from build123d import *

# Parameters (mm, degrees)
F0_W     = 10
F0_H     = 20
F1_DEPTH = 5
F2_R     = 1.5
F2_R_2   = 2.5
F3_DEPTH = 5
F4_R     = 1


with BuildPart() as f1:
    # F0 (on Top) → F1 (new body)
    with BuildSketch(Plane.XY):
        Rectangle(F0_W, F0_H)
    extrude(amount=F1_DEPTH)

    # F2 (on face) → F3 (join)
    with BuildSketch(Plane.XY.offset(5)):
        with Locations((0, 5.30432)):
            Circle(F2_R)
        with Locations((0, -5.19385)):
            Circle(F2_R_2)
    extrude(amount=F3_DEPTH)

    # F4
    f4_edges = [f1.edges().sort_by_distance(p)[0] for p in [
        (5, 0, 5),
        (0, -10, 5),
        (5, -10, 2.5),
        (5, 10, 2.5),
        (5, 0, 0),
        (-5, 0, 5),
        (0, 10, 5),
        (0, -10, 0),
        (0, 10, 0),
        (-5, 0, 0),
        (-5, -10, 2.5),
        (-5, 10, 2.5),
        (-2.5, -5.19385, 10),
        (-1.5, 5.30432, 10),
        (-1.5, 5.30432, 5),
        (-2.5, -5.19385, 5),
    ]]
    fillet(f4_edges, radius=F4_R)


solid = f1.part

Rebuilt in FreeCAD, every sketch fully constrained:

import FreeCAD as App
import Part
import Sketcher

V = App.Vector

doc = App.newDocument("Part")
body = doc.addObject("PartDesign::Body", "Body")

# Sketch on XY plane
sketch1 = body.newObject("Sketcher::SketchObject", "Sketch")
sketch1.AttachmentSupport = (doc.getObject("XY_Plane"), [""])
sketch1.MapMode = "FlatFace"
sketch1.addGeometry(Part.LineSegment(V(-5, 10, 0), V(-5, -10, 0)), False)
sketch1.addGeometry(Part.LineSegment(V(-5, -10, 0), V(5, -10, 0)), False)
sketch1.addGeometry(Part.LineSegment(V(5, -10, 0), V(5, 10, 0)), False)
sketch1.addGeometry(Part.LineSegment(V(5, 10, 0), V(-5, 10, 0)), False)
sketch1.addConstraint(Sketcher.Constraint("Coincident", 0, 2, 1, 1))
sketch1.addConstraint(Sketcher.Constraint("Coincident", 1, 2, 2, 1))
sketch1.addConstraint(Sketcher.Constraint("Coincident", 2, 2, 3, 1))
sketch1.addConstraint(Sketcher.Constraint("Coincident", 3, 2, 0, 1))
sketch1.addConstraint(Sketcher.Constraint("Vertical", 0))
sketch1.addConstraint(Sketcher.Constraint("Horizontal", 1))
sketch1.addConstraint(Sketcher.Constraint("Vertical", 2))
sketch1.addConstraint(Sketcher.Constraint("Horizontal", 3))
sketch1.addConstraint(Sketcher.Constraint("Symmetric", 0, 2, 2, 2, -1, 1))
sketch1.addConstraint(Sketcher.Constraint("DistanceX", 1, 1, 1, 2, 10.0))
sketch1.addConstraint(Sketcher.Constraint("DistanceY", 0, 2, 0, 1, 20.0))
pad1 = body.newObject("PartDesign::Pad", "Pad")
pad1.Profile = sketch1
pad1.Length = 5

# Sketch on XY plane
sketch2 = body.newObject("Sketcher::SketchObject", "Sketch001")
sketch2.AttachmentSupport = (doc.getObject("XY_Plane"), [""])
sketch2.MapMode = "FlatFace"
sketch2.AttachmentOffset = App.Placement(V(0, 0, 5), App.Rotation())
sketch2.addGeometry(Part.Circle(V(0, 5.3, 0), V(0, 0, 1), 1.5), False)
sketch2.addGeometry(Part.Circle(V(0, -5.2, 0), V(0, 0, 1), 2.5), False)
sketch2.addConstraint(Sketcher.Constraint("PointOnObject", 0, 3, -2))
sketch2.addConstraint(Sketcher.Constraint("PointOnObject", 1, 3, -2))
sketch2.addConstraint(Sketcher.Constraint("Diameter", 0, 3.0))
sketch2.addConstraint(Sketcher.Constraint("Diameter", 1, 5.0))
sketch2.addConstraint(Sketcher.Constraint("DistanceY", -1, 1, 0, 3, 5.30432))
sketch2.addConstraint(Sketcher.Constraint("DistanceY", 1, 3, -1, 1, 5.19385))
pad2 = body.newObject("PartDesign::Pad", "Pad001")
pad2.Profile = sketch2
pad2.Length = 5
doc.recompute()

fillet = body.newObject("PartDesign::Fillet", "Fillet")
fillet.Base = (pad2, ["Edge1"])
fillet.UseAllEdges = True
fillet.Radius = 1

doc.recompute()
